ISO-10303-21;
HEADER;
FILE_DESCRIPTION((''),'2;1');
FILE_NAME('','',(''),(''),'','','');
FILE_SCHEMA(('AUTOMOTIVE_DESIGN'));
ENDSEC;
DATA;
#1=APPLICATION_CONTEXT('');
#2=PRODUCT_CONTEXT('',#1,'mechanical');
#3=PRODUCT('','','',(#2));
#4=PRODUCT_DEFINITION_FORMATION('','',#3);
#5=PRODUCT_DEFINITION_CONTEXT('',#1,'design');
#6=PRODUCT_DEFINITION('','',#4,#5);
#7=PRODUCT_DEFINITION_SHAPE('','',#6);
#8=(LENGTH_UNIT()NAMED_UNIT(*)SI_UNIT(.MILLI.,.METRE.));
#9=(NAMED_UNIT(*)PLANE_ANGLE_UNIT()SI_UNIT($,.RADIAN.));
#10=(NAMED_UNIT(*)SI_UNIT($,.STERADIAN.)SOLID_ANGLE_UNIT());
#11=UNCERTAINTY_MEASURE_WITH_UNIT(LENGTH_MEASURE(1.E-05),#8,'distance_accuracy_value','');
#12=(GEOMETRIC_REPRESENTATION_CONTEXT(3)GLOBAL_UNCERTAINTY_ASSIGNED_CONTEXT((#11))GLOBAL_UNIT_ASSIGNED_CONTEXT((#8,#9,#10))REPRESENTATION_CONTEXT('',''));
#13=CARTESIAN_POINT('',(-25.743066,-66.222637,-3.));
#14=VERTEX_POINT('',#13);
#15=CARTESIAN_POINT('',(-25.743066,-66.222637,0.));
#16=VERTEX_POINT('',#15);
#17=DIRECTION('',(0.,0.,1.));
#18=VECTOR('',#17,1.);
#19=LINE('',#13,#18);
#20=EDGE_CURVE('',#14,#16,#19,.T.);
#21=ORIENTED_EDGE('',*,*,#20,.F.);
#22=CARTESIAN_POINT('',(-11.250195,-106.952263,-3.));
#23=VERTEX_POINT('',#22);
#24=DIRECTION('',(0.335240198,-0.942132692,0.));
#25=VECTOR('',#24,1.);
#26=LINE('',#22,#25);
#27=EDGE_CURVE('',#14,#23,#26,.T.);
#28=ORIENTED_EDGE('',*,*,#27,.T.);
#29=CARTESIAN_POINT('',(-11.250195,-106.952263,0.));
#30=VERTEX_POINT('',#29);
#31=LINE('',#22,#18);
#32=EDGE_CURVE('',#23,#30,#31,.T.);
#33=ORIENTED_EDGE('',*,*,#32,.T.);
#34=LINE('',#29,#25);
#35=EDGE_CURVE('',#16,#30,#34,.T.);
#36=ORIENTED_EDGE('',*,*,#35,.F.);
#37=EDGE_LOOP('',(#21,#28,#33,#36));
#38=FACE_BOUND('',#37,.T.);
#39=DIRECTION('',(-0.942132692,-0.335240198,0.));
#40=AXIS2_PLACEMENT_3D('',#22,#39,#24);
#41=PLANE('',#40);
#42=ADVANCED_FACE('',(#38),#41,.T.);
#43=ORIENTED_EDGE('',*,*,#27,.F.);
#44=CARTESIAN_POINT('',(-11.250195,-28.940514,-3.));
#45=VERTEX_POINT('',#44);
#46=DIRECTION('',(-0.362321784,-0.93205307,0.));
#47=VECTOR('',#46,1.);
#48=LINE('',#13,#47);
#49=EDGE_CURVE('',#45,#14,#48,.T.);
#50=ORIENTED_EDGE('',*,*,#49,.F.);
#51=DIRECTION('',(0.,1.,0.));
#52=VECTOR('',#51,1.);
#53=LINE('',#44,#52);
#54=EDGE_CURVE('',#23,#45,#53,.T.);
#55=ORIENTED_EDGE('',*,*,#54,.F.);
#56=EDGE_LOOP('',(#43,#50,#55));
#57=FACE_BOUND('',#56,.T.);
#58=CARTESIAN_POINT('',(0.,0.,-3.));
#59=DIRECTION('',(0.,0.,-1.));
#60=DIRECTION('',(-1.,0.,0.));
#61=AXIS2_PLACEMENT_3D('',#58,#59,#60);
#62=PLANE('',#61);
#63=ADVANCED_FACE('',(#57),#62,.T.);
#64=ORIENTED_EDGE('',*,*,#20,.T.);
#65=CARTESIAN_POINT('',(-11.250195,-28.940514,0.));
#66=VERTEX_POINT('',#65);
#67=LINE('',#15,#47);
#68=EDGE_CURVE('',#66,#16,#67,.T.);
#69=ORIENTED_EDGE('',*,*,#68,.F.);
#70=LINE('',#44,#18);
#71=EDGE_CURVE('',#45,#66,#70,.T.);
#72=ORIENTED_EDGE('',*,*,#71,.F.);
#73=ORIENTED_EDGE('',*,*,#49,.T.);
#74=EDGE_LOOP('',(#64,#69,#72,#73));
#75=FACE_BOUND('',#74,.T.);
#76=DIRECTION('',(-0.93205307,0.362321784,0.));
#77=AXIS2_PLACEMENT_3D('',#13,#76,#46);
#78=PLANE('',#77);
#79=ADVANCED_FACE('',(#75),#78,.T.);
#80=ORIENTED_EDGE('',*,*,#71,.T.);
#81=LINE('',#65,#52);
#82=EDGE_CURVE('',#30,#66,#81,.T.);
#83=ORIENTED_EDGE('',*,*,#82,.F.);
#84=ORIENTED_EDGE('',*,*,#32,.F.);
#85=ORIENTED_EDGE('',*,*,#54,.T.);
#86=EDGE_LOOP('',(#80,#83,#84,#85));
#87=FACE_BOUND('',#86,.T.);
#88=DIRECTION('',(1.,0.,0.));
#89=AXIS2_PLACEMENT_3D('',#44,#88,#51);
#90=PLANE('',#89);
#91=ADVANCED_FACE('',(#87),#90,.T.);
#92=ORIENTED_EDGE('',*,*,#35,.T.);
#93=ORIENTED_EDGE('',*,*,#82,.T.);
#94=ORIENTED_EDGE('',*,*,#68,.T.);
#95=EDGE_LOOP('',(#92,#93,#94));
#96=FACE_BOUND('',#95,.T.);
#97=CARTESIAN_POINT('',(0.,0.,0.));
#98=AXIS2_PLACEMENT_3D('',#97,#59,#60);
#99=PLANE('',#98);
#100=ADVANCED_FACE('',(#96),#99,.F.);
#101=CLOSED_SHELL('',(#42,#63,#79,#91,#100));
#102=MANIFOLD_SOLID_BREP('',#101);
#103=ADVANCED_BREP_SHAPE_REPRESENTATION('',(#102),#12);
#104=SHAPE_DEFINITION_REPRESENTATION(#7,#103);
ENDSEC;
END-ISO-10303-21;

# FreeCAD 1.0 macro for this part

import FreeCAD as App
import Part
import Sketcher

V = App.Vector
Q = App.Units.Quantity

doc = App.newDocument("Part")
params = doc.addObject("Spreadsheet::Sheet", "Params")
for row, (alias, value) in enumerate([
    ("sketch1_length", "40 mm"),
    ("pad1_length", "3 mm"),
], start=1):
    params.set(f"A{row}", alias)
    params.set(f"B{row}", "=" + value)
    params.setAlias(f"B{row}", alias)

body = doc.addObject("PartDesign::Body", "Body")

sketch1 = doc.addObject("Sketcher::SketchObject", "Sketch")
body.addObject(sketch1)
sketch1.AttachmentSupport = (doc.XY_Plane, [""])
sketch1.MapMode = "FlatFace"
sketch1.addGeometry(Part.LineSegment(V(-11.250195, -28.940514, 0), V(-25.743066, -66.222637, 0)), False)
sketch1.addGeometry(Part.LineSegment(V(-25.743066, -66.222637, 0), V(-11.250195, -106.952263, 0)), False)
sketch1.addGeometry(Part.LineSegment(V(-11.250195, -106.952263, 0), V(-11.250195, -28.940514, 0)), False)
sketch1.addConstraint(Sketcher.Constraint("Coincident", 0, 2, 1, 1))
sketch1.addConstraint(Sketcher.Constraint("Coincident", 1, 2, 2, 1))
sketch1.addConstraint(Sketcher.Constraint("Coincident", 2, 2, 0, 1))
sketch1.addConstraint(Sketcher.Constraint("Vertical", 2))
sketch1.addConstraint(Sketcher.Constraint("Distance", 0, Q("40 mm")))
sketch1.addConstraint(Sketcher.Constraint("DistanceY", 2, 1, 2, 2, Q("78.011749 mm")))
sketch1.addConstraint(Sketcher.Constraint("DistanceX", 0, 2, 1, 2, Q("14.492871 mm")))
sketch1.addConstraint(Sketcher.Constraint("DistanceX", 0, 2, -1, 1, Q("25.743066 mm")))
sketch1.addConstraint(Sketcher.Constraint("DistanceY", 0, 2, -1, 1, Q("66.222637 mm")))
sketch1.setExpression("Constraints[4]", "Params.sketch1_length")
pad1 = doc.addObject("PartDesign::Pad", "Pad")
body.addObject(pad1)
pad1.Profile = sketch1
pad1.setExpression("Length", "Params.pad1_length")
pad1.Reversed = True

doc.recompute()
